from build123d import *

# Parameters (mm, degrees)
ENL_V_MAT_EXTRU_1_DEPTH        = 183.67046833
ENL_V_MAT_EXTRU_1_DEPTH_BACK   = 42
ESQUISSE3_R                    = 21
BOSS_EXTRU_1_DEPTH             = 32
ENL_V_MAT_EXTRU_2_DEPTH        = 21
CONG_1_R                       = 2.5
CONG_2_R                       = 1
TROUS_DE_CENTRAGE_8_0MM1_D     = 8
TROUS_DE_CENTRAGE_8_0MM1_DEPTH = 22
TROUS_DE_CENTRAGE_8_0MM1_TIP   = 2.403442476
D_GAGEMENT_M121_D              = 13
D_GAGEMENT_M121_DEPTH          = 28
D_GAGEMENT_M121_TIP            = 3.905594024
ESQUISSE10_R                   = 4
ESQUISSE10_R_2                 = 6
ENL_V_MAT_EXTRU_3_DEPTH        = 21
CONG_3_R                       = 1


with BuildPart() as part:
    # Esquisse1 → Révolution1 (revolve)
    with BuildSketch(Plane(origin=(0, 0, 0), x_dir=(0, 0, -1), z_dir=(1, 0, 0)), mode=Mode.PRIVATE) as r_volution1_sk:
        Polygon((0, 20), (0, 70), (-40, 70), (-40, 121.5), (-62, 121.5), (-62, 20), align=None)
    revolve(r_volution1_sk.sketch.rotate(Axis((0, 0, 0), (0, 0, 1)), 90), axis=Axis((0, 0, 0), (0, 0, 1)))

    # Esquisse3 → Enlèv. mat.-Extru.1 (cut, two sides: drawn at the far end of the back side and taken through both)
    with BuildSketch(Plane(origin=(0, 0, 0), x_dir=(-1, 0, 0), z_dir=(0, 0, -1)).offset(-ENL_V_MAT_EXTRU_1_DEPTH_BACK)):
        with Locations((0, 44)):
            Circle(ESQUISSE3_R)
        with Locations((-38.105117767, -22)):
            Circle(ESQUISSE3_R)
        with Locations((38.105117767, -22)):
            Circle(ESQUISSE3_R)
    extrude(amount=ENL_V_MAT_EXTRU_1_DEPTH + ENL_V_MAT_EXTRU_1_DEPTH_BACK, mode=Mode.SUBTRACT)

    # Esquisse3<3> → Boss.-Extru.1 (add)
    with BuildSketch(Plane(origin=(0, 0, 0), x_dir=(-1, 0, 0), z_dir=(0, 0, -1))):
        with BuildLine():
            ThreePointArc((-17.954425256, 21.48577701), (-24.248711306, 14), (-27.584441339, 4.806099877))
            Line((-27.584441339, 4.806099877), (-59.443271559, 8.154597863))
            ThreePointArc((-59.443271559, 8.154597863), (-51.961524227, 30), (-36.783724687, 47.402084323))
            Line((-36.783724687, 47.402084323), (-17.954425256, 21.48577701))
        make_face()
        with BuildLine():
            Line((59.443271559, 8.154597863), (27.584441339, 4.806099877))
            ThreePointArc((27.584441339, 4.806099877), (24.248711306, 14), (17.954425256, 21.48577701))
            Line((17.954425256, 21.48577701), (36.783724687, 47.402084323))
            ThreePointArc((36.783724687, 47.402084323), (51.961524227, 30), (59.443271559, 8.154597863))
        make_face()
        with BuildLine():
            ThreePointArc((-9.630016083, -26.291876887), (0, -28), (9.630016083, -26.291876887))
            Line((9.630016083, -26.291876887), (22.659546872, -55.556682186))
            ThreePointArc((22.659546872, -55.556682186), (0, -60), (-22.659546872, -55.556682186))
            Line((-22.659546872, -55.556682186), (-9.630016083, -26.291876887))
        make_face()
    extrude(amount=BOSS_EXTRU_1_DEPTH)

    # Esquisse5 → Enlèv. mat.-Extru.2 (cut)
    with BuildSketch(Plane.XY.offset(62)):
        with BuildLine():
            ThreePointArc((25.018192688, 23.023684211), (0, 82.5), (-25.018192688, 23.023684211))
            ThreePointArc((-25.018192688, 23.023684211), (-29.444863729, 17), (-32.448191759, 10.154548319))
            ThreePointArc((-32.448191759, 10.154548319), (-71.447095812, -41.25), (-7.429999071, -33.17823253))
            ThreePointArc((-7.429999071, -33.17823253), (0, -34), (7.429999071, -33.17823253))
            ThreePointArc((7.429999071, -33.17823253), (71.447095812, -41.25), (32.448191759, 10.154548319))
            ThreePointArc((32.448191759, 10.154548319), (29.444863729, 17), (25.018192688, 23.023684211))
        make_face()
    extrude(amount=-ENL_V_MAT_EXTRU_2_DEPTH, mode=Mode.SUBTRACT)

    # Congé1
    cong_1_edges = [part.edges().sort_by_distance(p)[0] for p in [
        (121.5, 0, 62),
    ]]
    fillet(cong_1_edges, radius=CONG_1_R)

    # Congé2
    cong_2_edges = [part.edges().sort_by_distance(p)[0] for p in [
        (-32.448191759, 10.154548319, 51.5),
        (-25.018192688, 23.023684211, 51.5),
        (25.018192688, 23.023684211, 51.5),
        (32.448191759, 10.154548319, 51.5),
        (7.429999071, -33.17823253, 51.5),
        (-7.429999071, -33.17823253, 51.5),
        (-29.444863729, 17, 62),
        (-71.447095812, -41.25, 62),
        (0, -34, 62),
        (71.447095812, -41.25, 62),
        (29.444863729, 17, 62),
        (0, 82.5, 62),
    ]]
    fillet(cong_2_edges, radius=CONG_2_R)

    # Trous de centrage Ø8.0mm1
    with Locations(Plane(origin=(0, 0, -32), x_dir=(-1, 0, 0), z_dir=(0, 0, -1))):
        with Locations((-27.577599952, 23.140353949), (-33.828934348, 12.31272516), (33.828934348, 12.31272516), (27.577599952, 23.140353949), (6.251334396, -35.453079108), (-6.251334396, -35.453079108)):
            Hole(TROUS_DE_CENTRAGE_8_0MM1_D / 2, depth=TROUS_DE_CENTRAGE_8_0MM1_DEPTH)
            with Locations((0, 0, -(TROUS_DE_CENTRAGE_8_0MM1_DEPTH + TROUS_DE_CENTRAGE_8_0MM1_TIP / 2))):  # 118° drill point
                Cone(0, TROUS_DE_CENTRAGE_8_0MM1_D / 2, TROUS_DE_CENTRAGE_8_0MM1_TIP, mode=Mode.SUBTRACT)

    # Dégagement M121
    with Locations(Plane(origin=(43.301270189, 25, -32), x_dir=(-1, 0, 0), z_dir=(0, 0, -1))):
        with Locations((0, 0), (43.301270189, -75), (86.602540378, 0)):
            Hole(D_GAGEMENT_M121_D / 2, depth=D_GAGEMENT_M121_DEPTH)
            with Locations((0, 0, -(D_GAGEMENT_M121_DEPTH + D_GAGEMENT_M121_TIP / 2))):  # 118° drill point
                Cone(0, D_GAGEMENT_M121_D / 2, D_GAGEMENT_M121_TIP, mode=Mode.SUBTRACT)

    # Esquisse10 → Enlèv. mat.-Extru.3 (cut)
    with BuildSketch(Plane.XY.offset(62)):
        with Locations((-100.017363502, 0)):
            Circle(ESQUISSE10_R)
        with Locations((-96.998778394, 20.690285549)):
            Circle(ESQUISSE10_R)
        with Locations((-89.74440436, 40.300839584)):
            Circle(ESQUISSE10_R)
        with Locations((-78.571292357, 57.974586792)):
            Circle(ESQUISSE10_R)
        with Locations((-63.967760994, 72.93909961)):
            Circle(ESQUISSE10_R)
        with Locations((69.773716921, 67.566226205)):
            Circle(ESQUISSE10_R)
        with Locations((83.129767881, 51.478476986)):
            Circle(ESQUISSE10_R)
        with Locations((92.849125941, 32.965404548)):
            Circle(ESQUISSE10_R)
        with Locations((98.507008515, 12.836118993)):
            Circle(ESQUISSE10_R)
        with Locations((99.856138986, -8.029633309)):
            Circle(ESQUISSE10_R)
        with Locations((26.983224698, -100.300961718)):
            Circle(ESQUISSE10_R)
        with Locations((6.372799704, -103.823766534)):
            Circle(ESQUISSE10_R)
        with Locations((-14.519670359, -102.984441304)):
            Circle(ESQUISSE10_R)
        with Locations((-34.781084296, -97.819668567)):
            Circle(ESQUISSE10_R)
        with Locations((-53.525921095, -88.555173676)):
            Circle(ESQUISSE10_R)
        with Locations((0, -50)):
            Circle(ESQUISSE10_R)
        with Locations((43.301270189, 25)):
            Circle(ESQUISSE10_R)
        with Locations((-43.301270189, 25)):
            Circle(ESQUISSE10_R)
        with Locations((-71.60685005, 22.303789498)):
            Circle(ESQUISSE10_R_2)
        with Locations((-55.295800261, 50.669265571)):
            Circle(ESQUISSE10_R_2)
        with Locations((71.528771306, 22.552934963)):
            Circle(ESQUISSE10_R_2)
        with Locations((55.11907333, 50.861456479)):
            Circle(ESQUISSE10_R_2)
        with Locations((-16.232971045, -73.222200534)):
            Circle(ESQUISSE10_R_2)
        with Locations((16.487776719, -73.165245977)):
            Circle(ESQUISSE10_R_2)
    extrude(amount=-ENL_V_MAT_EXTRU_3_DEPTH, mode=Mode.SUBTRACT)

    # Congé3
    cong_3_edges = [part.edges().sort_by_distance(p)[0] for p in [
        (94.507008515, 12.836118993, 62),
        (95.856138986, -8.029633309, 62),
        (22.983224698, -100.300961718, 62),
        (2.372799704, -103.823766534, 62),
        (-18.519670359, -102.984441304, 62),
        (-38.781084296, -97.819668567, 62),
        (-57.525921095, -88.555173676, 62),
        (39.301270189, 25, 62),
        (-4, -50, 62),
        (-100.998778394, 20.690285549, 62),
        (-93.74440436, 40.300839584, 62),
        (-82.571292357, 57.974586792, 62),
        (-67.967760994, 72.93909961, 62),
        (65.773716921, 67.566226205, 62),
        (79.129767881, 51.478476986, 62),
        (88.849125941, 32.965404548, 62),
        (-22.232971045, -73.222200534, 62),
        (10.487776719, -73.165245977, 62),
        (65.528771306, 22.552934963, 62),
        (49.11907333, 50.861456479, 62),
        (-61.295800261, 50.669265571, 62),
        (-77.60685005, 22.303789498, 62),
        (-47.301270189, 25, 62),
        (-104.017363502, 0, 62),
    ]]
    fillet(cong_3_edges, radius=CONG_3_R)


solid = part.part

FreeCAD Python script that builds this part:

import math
import FreeCAD as App
import Part
import Sketcher

V = App.Vector
Q = App.Units.Quantity


def edges_at(feature, points):
    """Names of the edges that pass closest to the given points."""
    edges = feature.Shape.Edges
    near = lambda p: min(range(len(edges)), key=lambda i: edges[i].distToShape(Part.Vertex(*p))[0])
    return sorted({f"Edge{near(p) + 1}" for p in points})


def add_polygon(sketch, points):
    """Adds a closed chain of lines whose ends are joined by coincident constraints."""
    first, n = sketch.GeometryCount, len(points)
    for a, b in zip(points, points[1:] + points[:1]):
        sketch.addGeometry(Part.LineSegment(App.Vector(*a, 0), App.Vector(*b, 0)), False)
    for i in range(n):
        sketch.addConstraint(Sketcher.Constraint("Coincident", first + i, 2, first + (i + 1) % n, 1))

doc = App.newDocument("Part")
body = doc.addObject("PartDesign::Body", "Body")

# Sketch on YZ plane
sketch1 = body.newObject("Sketcher::SketchObject", "Sketch")
sketch1.AttachmentSupport = (doc.getObject("YZ_Plane"), [""])
sketch1.MapMode = "FlatFace"
add_polygon(sketch1, [(20, 0), (70, 0), (70, 40), (122, 40), (122, 62), (20, 62)])  # lines 0-5
sketch1.addConstraint([
    Sketcher.Constraint("Horizontal", 0),
    Sketcher.Constraint("Vertical", 1),
    Sketcher.Constraint("Horizontal", 2),
    Sketcher.Constraint("Vertical", 3),
    Sketcher.Constraint("Horizontal", 4),
    Sketcher.Constraint("Vertical", 5),
    Sketcher.Constraint("PointOnObject", 0, 2, -1),
    Sketcher.Constraint("DistanceX", 0, 1, 0, 2, 50.0),
    Sketcher.Constraint("DistanceY", 1, 1, 1, 2, 40.0),
    Sketcher.Constraint("DistanceY", 3, 1, 3, 2, 22.0),
    Sketcher.Constraint("DistanceX", 2, 1, 2, 2, 51.5),
    Sketcher.Constraint("DistanceX", -1, 1, 0, 2, 70.0),
])
revolution = body.newObject("PartDesign::Revolution", "Revolution")
revolution.Profile = sketch1
revolution.ReferenceAxis = (sketch1, ["V_Axis"])
revolution.Angle = 360

# Sketch on XY plane
sketch2 = body.newObject("Sketcher::SketchObject", "Sketch001")
sketch2.AttachmentSupport = (doc.getObject("XY_Plane"), [""])
sketch2.MapMode = "FlatFace"
sketch2.addGeometry([
    Part.Circle(V(0, 44, 0), V(0, 0, 1), 21),
    Part.Circle(V(38, -22, 0), V(0, 0, 1), 21),
    Part.Circle(V(-38, -22, 0), V(0, 0, 1), 21),
], False)
sketch2.addConstraint([
    Sketcher.Constraint("Equal", 0, 1),
    Sketcher.Constraint("Equal", 1, 2),
    Sketcher.Constraint("Symmetric", 1, 3, 2, 3, -2),
    Sketcher.Constraint("PointOnObject", 0, 3, -2),
    Sketcher.Constraint("Diameter", 0, 42.0),
    Sketcher.Constraint("DistanceY", -1, 1, 0, 3, 44.0),
    Sketcher.Constraint("DistanceY", 1, 3, -1, 1, 22.0),
    Sketcher.Constraint("DistanceX", -1, 1, 1, 3, 38.105118),
])
pocket1 = body.newObject("PartDesign::Pocket", "Pocket")
pocket1.Profile = sketch2
pocket1.Type = "TwoLengths"
pocket1.Length = 183.670468
pocket1.Length2 = 42

# Sketch on XY plane
sketch3 = body.newObject("Sketcher::SketchObject", "Sketch002")
sketch3.AttachmentSupport = (doc.getObject("XY_Plane"), [""])
sketch3.MapMode = "FlatFace"
sketch3.addGeometry([
    Part.ArcOfCircle(Part.Circle(V(0, 0, 0), V(0, 0, 1), 28), math.radians(10), math.radians(50)),  # 0
    Part.LineSegment(V(18, 21, 0), V(37, 47, 0)),  # 1
    Part.ArcOfCircle(Part.Circle(V(0, 0, 0), V(0, 0, 1), 60), math.radians(8), math.radians(52)),  # 2
    Part.LineSegment(V(59, 8, 0), V(28, 5, 0)),  # 3
    Part.LineSegment(V(-28, 5, 0), V(-59, 8, 0)),  # 4
    Part.ArcOfCircle(Part.Circle(V(0, 0, 0), V(0, 0, 1), 60), math.radians(128), math.radians(172)),  # 5
    Part.LineSegment(V(-37, 47, 0), V(-18, 21, 0)),  # 6
    Part.ArcOfCircle(Part.Circle(V(0, 0, 0), V(0, 0, 1), 28), math.radians(130), math.radians(170)),  # 7
    Part.ArcOfCircle(Part.Circle(V(0, 0, 0), V(0, 0, 1), 28), math.radians(-110), math.radians(-70)),  # 8
    Part.LineSegment(V(10, -26, 0), V(23, -56, 0)),  # 9
    Part.ArcOfCircle(Part.Circle(V(0, 0, 0), V(0, 0, 1), 60), math.radians(-112), math.radians(-68)),  # 10
    Part.LineSegment(V(-23, -56, 0), V(-10, -26, 0)),  # 11
], False)
sketch3.addConstraint([
    Sketcher.Constraint("Coincident", 0, 2, 1, 1),
    Sketcher.Constraint("Coincident", 1, 2, 2, 2),
    Sketcher.Constraint("Coincident", 2, 1, 3, 1),
    Sketcher.Constraint("Coincident", 3, 2, 0, 1),
    Sketcher.Constraint("Coincident", 4, 2, 5, 2),
    Sketcher.Constraint("Coincident", 5, 1, 6, 1),
    Sketcher.Constraint("Coincident", 6, 2, 7, 1),
    Sketcher.Constraint("Coincident", 7, 2, 4, 1),
    Sketcher.Constraint("Coincident", 8, 2, 9, 1),
    Sketcher.Constraint("Coincident", 9, 2, 10, 2),
    Sketcher.Constraint("Coincident", 10, 1, 11, 1),
    Sketcher.Constraint("Coincident", 11, 2, 8, 1),
    Sketcher.Constraint("Coincident", 0, 3, -1, 1),
    Sketcher.Constraint("Coincident", 2, 3, -1, 1),
    Sketcher.Constraint("Coincident", 5, 3, -1, 1),
    Sketcher.Constraint("Coincident", 7, 3, -1, 1),
    Sketcher.Constraint("Coincident", 8, 3, -1, 1),
    Sketcher.Constraint("Coincident", 10, 3, -1, 1),
    Sketcher.Constraint("Equal", 2, 5),
    Sketcher.Constraint("Equal", 0, 7),
    Sketcher.Constraint("Equal", 7, 8),
    Sketcher.Constraint("Equal", 5, 10),
    Sketcher.Constraint("Horizontal", 2, 1, 4, 2),
    Sketcher.Constraint("Horizontal", 1, 2, 5, 1),
    Sketcher.Constraint("Horizontal", 0, 2, 6, 2),
    Sketcher.Constraint("Horizontal", 3, 2, 7, 2),
    Sketcher.Constraint("Horizontal", 9, 2, 10, 1),
    Sketcher.Constraint("Horizontal", 8, 2, 11, 2),
    Sketcher.Constraint("Equal", 1, 3),
    Sketcher.Constraint("Equal", 6, 9),
    Sketcher.Constraint("Radius", 0, 28.0),
    Sketcher.Constraint("Radius", 2, 60.0),
    Sketcher.Constraint("Angle", 1, Q("54 deg")),
    Sketcher.Constraint("Angle", 3, Q("-174 deg")),
    Sketcher.Constraint("Angle", 9, Q("-66 deg")),
    Sketcher.Constraint("DistanceY", -1, 1, 3, 2, 4.8061),
])
pad1 = body.newObject("PartDesign::Pad", "Pad")
pad1.Profile = sketch3
pad1.Length = 32
pad1.Reversed = True

# Sketch on XY plane
sketch4 = body.newObject("Sketcher::SketchObject", "Sketch003")
sketch4.AttachmentSupport = (doc.getObject("XY_Plane"), [""])
sketch4.MapMode = "FlatFace"
sketch4.AttachmentOffset = App.Placement(V(0, 0, 62), App.Rotation())
sketch4.addGeometry([
    Part.ArcOfCircle(Part.Circle(V(0, 48, 0), V(0, 0, 1), 35), math.radians(-44), math.radians(224)),  # 0
    Part.ArcOfCircle(Part.Circle(V(0, 0, 0), V(0, 0, 1), 34), math.radians(137), math.radians(163)),  # 1
    Part.ArcOfCircle(Part.Circle(V(-41, -24, 0), V(0, 0, 1), 35), math.radians(76), math.radians(344)),  # 2
    Part.ArcOfCircle(Part.Circle(V(0, 0, 0), V(0, 0, 1), 34), math.radians(-103), math.radians(-77)),  # 3
    Part.ArcOfCircle(Part.Circle(V(41, -24, 0), V(0, 0, 1), 35), math.radians(-164), math.radians(104)),  # 4
    Part.ArcOfCircle(Part.Circle(V(0, 0, 0), V(0, 0, 1), 34), math.radians(17), math.radians(43)),  # 5
], False)
sketch4.addConstraint([
    Sketcher.Constraint("Coincident", 0, 2, 1, 1),
    Sketcher.Constraint("Coincident", 1, 2, 2, 1),
    Sketcher.Constraint("Coincident", 2, 2, 3, 1),
    Sketcher.Constraint("Coincident", 3, 2, 4, 1),
    Sketcher.Constraint("Coincident", 4, 2, 5, 1),
    Sketcher.Constraint("Coincident", 5, 2, 0, 1),
    Sketcher.Constraint("Coincident", 1, 3, -1, 1),
    Sketcher.Constraint("Coincident", 3, 3, -1, 1),
    Sketcher.Constraint("Coincident", 5, 3, -1, 1),
    Sketcher.Constraint("Equal", 0, 2),
    Sketcher.Constraint("Equal", 1, 3),
    Sketcher.Constraint("Equal", 2, 4),
    Sketcher.Constraint("Equal", 3, 5),
    Sketcher.Constraint("Symmetric", 2, 3, 4, 3, -2),
    Sketcher.Constraint("PointOnObject", 0, 3, -2),
    Sketcher.Constraint("Radius", 0, 35.0),
    Sketcher.Constraint("Radius", 1, 34.0),
    Sketcher.Constraint("DistanceY", -1, 1, 0, 3, 47.5),
    Sketcher.Constraint("DistanceY", 2, 3, -1, 1, 23.75),
    Sketcher.Constraint("DistanceX", 2, 2, -1, 1, 7.429999),
])
pocket2 = body.newObject("PartDesign::Pocket", "Pocket001")
pocket2.Profile = sketch4
pocket2.Length = 21
doc.recompute()

fillet = body.newObject("PartDesign::Fillet", "Fillet")
fillet.Base = (pocket2, edges_at(pocket2, [(121.5, 0, 62)]))
fillet.Radius = 2.5
doc.recompute()

fillet2 = body.newObject("PartDesign::Fillet", "Fillet001")
fillet2.Base = (fillet, edges_at(fillet, [
    (-32.448, 10.155, 51.5),
    (-25.018, 23.024, 51.5),
    (25.018, 23.024, 51.5),
    (32.448, 10.155, 51.5),
    (7.43, -33.178, 51.5),
    (-7.43, -33.178, 51.5),
    (-29.445, 17, 62),
    (-71.447, -41.25, 62),
    (0, -34, 62),
    (71.447, -41.25, 62),
    (29.445, 17, 62),
    (0, 82.5, 62),
]))
fillet2.Radius = 1

# Sketch on XY plane
sketch5 = body.newObject("Sketcher::SketchObject", "Sketch004")
sketch5.AttachmentSupport = (doc.getObject("XY_Plane"), [""])
sketch5.MapMode = "FlatFace"
sketch5.AttachmentOffset = App.Placement(V(0, 0, -32), App.Rotation())
sketch5.addGeometry([
    Part.Circle(V(27.6, 23.1, 0), V(0, 0, 1), 4),  # 0
    Part.Circle(V(33.8, 12.3, 0), V(0, 0, 1), 4),  # 1
    Part.Circle(V(-33.8, 12.3, 0), V(0, 0, 1), 4),  # 2
    Part.Circle(V(-27.6, 23.1, 0), V(0, 0, 1), 4),  # 3
    Part.Circle(V(-6.3, -35.5, 0), V(0, 0, 1), 4),  # 4
    Part.Circle(V(6.3, -35.5, 0), V(0, 0, 1), 4),  # 5
], False)
sketch5.addConstraint([
    Sketcher.Constraint("Equal", 0, 1),
    Sketcher.Constraint("Equal", 1, 2),
    Sketcher.Constraint("Equal", 2, 3),
    Sketcher.Constraint("Equal", 3, 4),
    Sketcher.Constraint("Equal", 4, 5),
    Sketcher.Constraint("Symmetric", 1, 3, 2, 3, -2),
    Sketcher.Constraint("Symmetric", 0, 3, 3, 3, -2),
    Sketcher.Constraint("Symmetric", 4, 3, 5, 3, -2),
    Sketcher.Constraint("Diameter", 0, 8.0),
    Sketcher.Constraint("DistanceX", -1, 1, 0, 3, 27.5776),
    Sketcher.Constraint("DistanceX", 2, 3, 4, 3, 27.5776),
    Sketcher.Constraint("DistanceY", 4, 3, -1, 1, 35.453079),
    Sketcher.Constraint("DistanceY", 1, 3, 0, 3, 10.827629),
    Sketcher.Constraint("DistanceX", 2, 3, 1, 3, 67.657869),
    Sketcher.Constraint("DistanceY", -1, 1, 0, 3, 23.140354),
])
doc.recompute()
hole = body.newObject("PartDesign::Hole", "Hole")
hole.Profile = sketch5
hole.ThreadType = "None"
hole.Diameter = 8
hole.DepthType = "Dimension"
hole.Depth = 22
hole.DrillPoint = "Angled"
hole.DrillPointAngle = 118
hole.Reversed = True

# Sketch on XY plane
sketch6 = body.newObject("Sketcher::SketchObject", "Sketch005")
sketch6.AttachmentSupport = (doc.getObject("XY_Plane"), [""])
sketch6.MapMode = "FlatFace"
sketch6.AttachmentOffset = App.Placement(V(0, 0, -32), App.Rotation())
sketch6.addGeometry([
    Part.Circle(V(43, 25, 0), V(0, 0, 1), 6),
    Part.Circle(V(0, -50, 0), V(0, 0, 1), 6),
    Part.Circle(V(-43, 25, 0), V(0, 0, 1), 6),
], False)
sketch6.addConstraint([
    Sketcher.Constraint("Equal", 0, 1),
    Sketcher.Constraint("Equal", 1, 2),
    Sketcher.Constraint("Symmetric", 0, 3, 2, 3, -2),
    Sketcher.Constraint("PointOnObject", 1, 3, -2),
    Sketcher.Constraint("Diameter", 0, 13.0),
    Sketcher.Constraint("DistanceY", -1, 1, 0, 3, 25.0),
    Sketcher.Constraint("DistanceY", 1, 3, -1, 1, 50.0),
    Sketcher.Constraint("DistanceX", -1, 1, 0, 3, 43.30127),
])
doc.recompute()
hole2 = body.newObject("PartDesign::Hole", "Hole001")
hole2.Profile = sketch6
hole2.ThreadType = "None"
hole2.Diameter = 13
hole2.DepthType = "Dimension"
hole2.Depth = 28
hole2.DrillPoint = "Angled"
hole2.DrillPointAngle = 118
hole2.Reversed = True

# Sketch on XY plane
sketch7 = body.newObject("Sketcher::SketchObject", "Sketch006")
sketch7.AttachmentSupport = (doc.getObject("XY_Plane"), [""])
sketch7.MapMode = "FlatFace"
sketch7.AttachmentOffset = App.Placement(V(0, 0, 62), App.Rotation())
sketch7.addGeometry([
    Part.Circle(V(-100, 0, 0), V(0, 0, 1), 4),  # 0
    Part.Circle(V(-97, 20.7, 0), V(0, 0, 1), 4),  # 1
    Part.Circle(V(-89.7, 40.3, 0), V(0, 0, 1), 4),  # 2
    Part.Circle(V(-78.6, 58, 0), V(0, 0, 1), 4),  # 3
    Part.Circle(V(-64, 72.9, 0), V(0, 0, 1), 4),  # 4
    Part.Circle(V(69.8, 67.6, 0), V(0, 0, 1), 4),  # 5
    Part.Circle(V(83.1, 51.5, 0), V(0, 0, 1), 4),  # 6
    Part.Circle(V(92.8, 33, 0), V(0, 0, 1), 4),  # 7
    Part.Circle(V(98.5, 12.8, 0), V(0, 0, 1), 4),  # 8
    Part.Circle(V(99.9, -8, 0), V(0, 0, 1), 4),  # 9
    Part.Circle(V(27, -100.3, 0), V(0, 0, 1), 4),  # 10
    Part.Circle(V(6.4, -103.8, 0), V(0, 0, 1), 4),  # 11
    Part.Circle(V(-14.5, -103, 0), V(0, 0, 1), 4),  # 12
    Part.Circle(V(-34.8, -97.8, 0), V(0, 0, 1), 4),  # 13
    Part.Circle(V(-53.5, -88.6, 0), V(0, 0, 1), 4),  # 14
    Part.Circle(V(0, -50, 0), V(0, 0, 1), 4),  # 15
    Part.Circle(V(43.3, 25, 0), V(0, 0, 1), 4),  # 16
    Part.Circle(V(-43.3, 25, 0), V(0, 0, 1), 4),  # 17
    Part.Circle(V(-71.6, 22.3, 0), V(0, 0, 1), 6),  # 18
    Part.Circle(V(-55.3, 50.7, 0), V(0, 0, 1), 6),  # 19
    Part.Circle(V(71.5, 22.6, 0), V(0, 0, 1), 6),  # 20
    Part.Circle(V(55.1, 50.9, 0), V(0, 0, 1), 6),  # 21
    Part.Circle(V(-16.2, -73.2, 0), V(0, 0, 1), 6),  # 22
    Part.Circle(V(16.5, -73.2, 0), V(0, 0, 1), 6),  # 23
], False)
sketch7.addConstraint([
    Sketcher.Constraint("Equal", 0, 1),
    Sketcher.Constraint("Equal", 1, 2),
    Sketcher.Constraint("Equal", 2, 3),
    Sketcher.Constraint("Equal", 3, 4),
    Sketcher.Constraint("Equal", 4, 5),
    Sketcher.Constraint("Equal", 5, 6),
    Sketcher.Constraint("Equal", 6, 7),
    Sketcher.Constraint("Equal", 7, 8),
    Sketcher.Constraint("Equal", 8, 9),
    Sketcher.Constraint("Equal", 9, 10),
    Sketcher.Constraint("Equal", 10, 11),
    Sketcher.Constraint("Equal", 11, 12),
    Sketcher.Constraint("Equal", 12, 13),
    Sketcher.Constraint("Equal", 13, 14),
    Sketcher.Constraint("Equal", 14, 15),
    Sketcher.Constraint("Equal", 15, 16),
    Sketcher.Constraint("Equal", 16, 17),
    Sketcher.Constraint("Equal", 18, 19),
    Sketcher.Constraint("Equal", 19, 20),
    Sketcher.Constraint("Equal", 20, 21),
    Sketcher.Constraint("Equal", 21, 22),
    Sketcher.Constraint("Equal", 22, 23),
    Sketcher.Constraint("Symmetric", 16, 3, 17, 3, -2),
    Sketcher.Constraint("PointOnObject", 0, 3, -1),
    Sketcher.Constraint("PointOnObject", 15, 3, -2),
    Sketcher.Constraint("Diameter", 0, 8.0),
    Sketcher.Constraint("Diameter", 18, 12.0),
    Sketcher.Constraint("DistanceY", 15, 3, -1, 1, 50.0),
    Sketcher.Constraint("DistanceY", -1, 1, 16, 3, 25.0),
    Sketcher.Constraint("DistanceY", -1, 1, 4, 3, 72.9391),
    Sketcher.Constraint("DistanceX", -1, 1, 11, 3, 6.3728),
    Sketcher.Constraint("DistanceX", 19, 3, -1, 1, 55.2958),
    Sketcher.Constraint("DistanceY", 22, 3, -1, 1, 73.222201),
    Sketcher.Constraint("DistanceY", 1, 3, 3, 3, 37.284301),
    Sketcher.Constraint("DistanceX", 3, 3, 8, 3, 177.078301),
    Sketcher.Constraint("DistanceX", 4, 3, 9, 3, 163.8239),
    Sketcher.Constraint("DistanceX", 10, 3, 7, 3, 65.865901),
    Sketcher.Constraint("DistanceX", 16, 3, 20, 3, 28.227501),
    Sketcher.Constraint("DistanceX", 22, 3, 12, 3, 1.713301),
    Sketcher.Constraint("DistanceX", 1, 3, -1, 1, 96.998778),
    Sketcher.Constraint("DistanceY", -1, 1, 2, 3, 40.30084),
    Sketcher.Constraint("DistanceX", 4, 3, -1, 1, 63.967761),
    Sketcher.Constraint("DistanceX", -1, 1, 8, 3, 98.507009),
    Sketcher.Constraint("DistanceY", -1, 1, 8, 3, 12.836119),
    Sketcher.Constraint("DistanceY", 10, 3, -1, 1, 100.300962),
    Sketcher.Constraint("DistanceX", 12, 3, -1, 1, 14.51967),
    Sketcher.Constraint("DistanceY", 12, 3, -1, 1, 102.984441),
    Sketcher.Constraint("DistanceY", 13, 3, -1, 1, 97.819669),
    Sketcher.Constraint("DistanceX", 14, 3, -1, 1, 53.525921),
    Sketcher.Constraint("DistanceX", -1, 1, 16, 3, 43.30127),
    Sketcher.Constraint("DistanceX", 18, 3, -1, 1, 71.60685),
    Sketcher.Constraint("DistanceY", -1, 1, 18, 3, 22.303789),
    Sketcher.Constraint("DistanceX", 0, 3, 2, 3, 10.272959),
    Sketcher.Constraint("DistanceX", 0, 3, 3, 3, 21.446071),
    Sketcher.Constraint("DistanceX", 3, 3, 5, 3, 148.345009),
    Sketcher.Constraint("DistanceY", 3, 3, 5, 3, 9.591639),
    Sketcher.Constraint("DistanceX", 5, 3, 6, 3, 13.356051),
    Sketcher.Constraint("DistanceY", 6, 3, 5, 3, 16.087749),
    Sketcher.Constraint("DistanceX", 6, 3, 7, 3, 9.719358),
    Sketcher.Constraint("DistanceY", 7, 3, 5, 3, 34.600822),
    Sketcher.Constraint("DistanceY", 9, 3, 6, 3, 59.50811),
    Sketcher.Constraint("DistanceY", 10, 3, 9, 3, 92.271328),
    Sketcher.Constraint("DistanceX", 13, 3, 10, 3, 61.764309),
    Sketcher.Constraint("DistanceY", 10, 3, 14, 3, 11.745788),
    Sketcher.Constraint("DistanceY", 19, 3, 3, 3, 7.305321),
    Sketcher.Constraint("DistanceY", 20, 3, 7, 3, 10.41247),
    Sketcher.Constraint("DistanceY", 21, 3, 5, 3, 16.70477),
    Sketcher.Constraint("DistanceY", 11, 3, 23, 3, 30.658521),
    Sketcher.Constraint("DistanceY", 11, 3, -1, 1, 103.823767),
    Sketcher.Constraint("DistanceX", -1, 1, 21, 3, 55.119073),
    Sketcher.Constraint("DistanceX", -1, 1, 23, 3, 16.487777),
])
pocket3 = body.newObject("PartDesign::Pocket", "Pocket002")
pocket3.Profile = sketch7
pocket3.Length = 21
doc.recompute()

fillet3 = body.newObject("PartDesign::Fillet", "Fillet002")
fillet3.Base = (pocket3, edges_at(pocket3, [
    (94.507, 12.836, 62),
    (95.856, -8.03, 62),
    (22.983, -100.301, 62),
    (2.373, -103.824, 62),
    (-18.52, -102.984, 62),
    (-38.781, -97.82, 62),
    (-57.526, -88.555, 62),
    (39.301, 25, 62),
    (-4, -50, 62),
    (-100.999, 20.69, 62),
    (-93.744, 40.301, 62),
    (-82.571, 57.975, 62),
    (-67.968, 72.939, 62),
    (65.774, 67.566, 62),
    (79.13, 51.478, 62),
    (88.849, 32.965, 62),
    (-22.233, -73.222, 62),
    (10.488, -73.165, 62),
    (65.529, 22.553, 62),
    (49.119, 50.861, 62),
    (-61.296, 50.669, 62),
    (-77.607, 22.304, 62),
    (-47.301, 25, 62),
    (-104.017, 0, 62),
]))
fillet3.Radius = 1

doc.recompute()
